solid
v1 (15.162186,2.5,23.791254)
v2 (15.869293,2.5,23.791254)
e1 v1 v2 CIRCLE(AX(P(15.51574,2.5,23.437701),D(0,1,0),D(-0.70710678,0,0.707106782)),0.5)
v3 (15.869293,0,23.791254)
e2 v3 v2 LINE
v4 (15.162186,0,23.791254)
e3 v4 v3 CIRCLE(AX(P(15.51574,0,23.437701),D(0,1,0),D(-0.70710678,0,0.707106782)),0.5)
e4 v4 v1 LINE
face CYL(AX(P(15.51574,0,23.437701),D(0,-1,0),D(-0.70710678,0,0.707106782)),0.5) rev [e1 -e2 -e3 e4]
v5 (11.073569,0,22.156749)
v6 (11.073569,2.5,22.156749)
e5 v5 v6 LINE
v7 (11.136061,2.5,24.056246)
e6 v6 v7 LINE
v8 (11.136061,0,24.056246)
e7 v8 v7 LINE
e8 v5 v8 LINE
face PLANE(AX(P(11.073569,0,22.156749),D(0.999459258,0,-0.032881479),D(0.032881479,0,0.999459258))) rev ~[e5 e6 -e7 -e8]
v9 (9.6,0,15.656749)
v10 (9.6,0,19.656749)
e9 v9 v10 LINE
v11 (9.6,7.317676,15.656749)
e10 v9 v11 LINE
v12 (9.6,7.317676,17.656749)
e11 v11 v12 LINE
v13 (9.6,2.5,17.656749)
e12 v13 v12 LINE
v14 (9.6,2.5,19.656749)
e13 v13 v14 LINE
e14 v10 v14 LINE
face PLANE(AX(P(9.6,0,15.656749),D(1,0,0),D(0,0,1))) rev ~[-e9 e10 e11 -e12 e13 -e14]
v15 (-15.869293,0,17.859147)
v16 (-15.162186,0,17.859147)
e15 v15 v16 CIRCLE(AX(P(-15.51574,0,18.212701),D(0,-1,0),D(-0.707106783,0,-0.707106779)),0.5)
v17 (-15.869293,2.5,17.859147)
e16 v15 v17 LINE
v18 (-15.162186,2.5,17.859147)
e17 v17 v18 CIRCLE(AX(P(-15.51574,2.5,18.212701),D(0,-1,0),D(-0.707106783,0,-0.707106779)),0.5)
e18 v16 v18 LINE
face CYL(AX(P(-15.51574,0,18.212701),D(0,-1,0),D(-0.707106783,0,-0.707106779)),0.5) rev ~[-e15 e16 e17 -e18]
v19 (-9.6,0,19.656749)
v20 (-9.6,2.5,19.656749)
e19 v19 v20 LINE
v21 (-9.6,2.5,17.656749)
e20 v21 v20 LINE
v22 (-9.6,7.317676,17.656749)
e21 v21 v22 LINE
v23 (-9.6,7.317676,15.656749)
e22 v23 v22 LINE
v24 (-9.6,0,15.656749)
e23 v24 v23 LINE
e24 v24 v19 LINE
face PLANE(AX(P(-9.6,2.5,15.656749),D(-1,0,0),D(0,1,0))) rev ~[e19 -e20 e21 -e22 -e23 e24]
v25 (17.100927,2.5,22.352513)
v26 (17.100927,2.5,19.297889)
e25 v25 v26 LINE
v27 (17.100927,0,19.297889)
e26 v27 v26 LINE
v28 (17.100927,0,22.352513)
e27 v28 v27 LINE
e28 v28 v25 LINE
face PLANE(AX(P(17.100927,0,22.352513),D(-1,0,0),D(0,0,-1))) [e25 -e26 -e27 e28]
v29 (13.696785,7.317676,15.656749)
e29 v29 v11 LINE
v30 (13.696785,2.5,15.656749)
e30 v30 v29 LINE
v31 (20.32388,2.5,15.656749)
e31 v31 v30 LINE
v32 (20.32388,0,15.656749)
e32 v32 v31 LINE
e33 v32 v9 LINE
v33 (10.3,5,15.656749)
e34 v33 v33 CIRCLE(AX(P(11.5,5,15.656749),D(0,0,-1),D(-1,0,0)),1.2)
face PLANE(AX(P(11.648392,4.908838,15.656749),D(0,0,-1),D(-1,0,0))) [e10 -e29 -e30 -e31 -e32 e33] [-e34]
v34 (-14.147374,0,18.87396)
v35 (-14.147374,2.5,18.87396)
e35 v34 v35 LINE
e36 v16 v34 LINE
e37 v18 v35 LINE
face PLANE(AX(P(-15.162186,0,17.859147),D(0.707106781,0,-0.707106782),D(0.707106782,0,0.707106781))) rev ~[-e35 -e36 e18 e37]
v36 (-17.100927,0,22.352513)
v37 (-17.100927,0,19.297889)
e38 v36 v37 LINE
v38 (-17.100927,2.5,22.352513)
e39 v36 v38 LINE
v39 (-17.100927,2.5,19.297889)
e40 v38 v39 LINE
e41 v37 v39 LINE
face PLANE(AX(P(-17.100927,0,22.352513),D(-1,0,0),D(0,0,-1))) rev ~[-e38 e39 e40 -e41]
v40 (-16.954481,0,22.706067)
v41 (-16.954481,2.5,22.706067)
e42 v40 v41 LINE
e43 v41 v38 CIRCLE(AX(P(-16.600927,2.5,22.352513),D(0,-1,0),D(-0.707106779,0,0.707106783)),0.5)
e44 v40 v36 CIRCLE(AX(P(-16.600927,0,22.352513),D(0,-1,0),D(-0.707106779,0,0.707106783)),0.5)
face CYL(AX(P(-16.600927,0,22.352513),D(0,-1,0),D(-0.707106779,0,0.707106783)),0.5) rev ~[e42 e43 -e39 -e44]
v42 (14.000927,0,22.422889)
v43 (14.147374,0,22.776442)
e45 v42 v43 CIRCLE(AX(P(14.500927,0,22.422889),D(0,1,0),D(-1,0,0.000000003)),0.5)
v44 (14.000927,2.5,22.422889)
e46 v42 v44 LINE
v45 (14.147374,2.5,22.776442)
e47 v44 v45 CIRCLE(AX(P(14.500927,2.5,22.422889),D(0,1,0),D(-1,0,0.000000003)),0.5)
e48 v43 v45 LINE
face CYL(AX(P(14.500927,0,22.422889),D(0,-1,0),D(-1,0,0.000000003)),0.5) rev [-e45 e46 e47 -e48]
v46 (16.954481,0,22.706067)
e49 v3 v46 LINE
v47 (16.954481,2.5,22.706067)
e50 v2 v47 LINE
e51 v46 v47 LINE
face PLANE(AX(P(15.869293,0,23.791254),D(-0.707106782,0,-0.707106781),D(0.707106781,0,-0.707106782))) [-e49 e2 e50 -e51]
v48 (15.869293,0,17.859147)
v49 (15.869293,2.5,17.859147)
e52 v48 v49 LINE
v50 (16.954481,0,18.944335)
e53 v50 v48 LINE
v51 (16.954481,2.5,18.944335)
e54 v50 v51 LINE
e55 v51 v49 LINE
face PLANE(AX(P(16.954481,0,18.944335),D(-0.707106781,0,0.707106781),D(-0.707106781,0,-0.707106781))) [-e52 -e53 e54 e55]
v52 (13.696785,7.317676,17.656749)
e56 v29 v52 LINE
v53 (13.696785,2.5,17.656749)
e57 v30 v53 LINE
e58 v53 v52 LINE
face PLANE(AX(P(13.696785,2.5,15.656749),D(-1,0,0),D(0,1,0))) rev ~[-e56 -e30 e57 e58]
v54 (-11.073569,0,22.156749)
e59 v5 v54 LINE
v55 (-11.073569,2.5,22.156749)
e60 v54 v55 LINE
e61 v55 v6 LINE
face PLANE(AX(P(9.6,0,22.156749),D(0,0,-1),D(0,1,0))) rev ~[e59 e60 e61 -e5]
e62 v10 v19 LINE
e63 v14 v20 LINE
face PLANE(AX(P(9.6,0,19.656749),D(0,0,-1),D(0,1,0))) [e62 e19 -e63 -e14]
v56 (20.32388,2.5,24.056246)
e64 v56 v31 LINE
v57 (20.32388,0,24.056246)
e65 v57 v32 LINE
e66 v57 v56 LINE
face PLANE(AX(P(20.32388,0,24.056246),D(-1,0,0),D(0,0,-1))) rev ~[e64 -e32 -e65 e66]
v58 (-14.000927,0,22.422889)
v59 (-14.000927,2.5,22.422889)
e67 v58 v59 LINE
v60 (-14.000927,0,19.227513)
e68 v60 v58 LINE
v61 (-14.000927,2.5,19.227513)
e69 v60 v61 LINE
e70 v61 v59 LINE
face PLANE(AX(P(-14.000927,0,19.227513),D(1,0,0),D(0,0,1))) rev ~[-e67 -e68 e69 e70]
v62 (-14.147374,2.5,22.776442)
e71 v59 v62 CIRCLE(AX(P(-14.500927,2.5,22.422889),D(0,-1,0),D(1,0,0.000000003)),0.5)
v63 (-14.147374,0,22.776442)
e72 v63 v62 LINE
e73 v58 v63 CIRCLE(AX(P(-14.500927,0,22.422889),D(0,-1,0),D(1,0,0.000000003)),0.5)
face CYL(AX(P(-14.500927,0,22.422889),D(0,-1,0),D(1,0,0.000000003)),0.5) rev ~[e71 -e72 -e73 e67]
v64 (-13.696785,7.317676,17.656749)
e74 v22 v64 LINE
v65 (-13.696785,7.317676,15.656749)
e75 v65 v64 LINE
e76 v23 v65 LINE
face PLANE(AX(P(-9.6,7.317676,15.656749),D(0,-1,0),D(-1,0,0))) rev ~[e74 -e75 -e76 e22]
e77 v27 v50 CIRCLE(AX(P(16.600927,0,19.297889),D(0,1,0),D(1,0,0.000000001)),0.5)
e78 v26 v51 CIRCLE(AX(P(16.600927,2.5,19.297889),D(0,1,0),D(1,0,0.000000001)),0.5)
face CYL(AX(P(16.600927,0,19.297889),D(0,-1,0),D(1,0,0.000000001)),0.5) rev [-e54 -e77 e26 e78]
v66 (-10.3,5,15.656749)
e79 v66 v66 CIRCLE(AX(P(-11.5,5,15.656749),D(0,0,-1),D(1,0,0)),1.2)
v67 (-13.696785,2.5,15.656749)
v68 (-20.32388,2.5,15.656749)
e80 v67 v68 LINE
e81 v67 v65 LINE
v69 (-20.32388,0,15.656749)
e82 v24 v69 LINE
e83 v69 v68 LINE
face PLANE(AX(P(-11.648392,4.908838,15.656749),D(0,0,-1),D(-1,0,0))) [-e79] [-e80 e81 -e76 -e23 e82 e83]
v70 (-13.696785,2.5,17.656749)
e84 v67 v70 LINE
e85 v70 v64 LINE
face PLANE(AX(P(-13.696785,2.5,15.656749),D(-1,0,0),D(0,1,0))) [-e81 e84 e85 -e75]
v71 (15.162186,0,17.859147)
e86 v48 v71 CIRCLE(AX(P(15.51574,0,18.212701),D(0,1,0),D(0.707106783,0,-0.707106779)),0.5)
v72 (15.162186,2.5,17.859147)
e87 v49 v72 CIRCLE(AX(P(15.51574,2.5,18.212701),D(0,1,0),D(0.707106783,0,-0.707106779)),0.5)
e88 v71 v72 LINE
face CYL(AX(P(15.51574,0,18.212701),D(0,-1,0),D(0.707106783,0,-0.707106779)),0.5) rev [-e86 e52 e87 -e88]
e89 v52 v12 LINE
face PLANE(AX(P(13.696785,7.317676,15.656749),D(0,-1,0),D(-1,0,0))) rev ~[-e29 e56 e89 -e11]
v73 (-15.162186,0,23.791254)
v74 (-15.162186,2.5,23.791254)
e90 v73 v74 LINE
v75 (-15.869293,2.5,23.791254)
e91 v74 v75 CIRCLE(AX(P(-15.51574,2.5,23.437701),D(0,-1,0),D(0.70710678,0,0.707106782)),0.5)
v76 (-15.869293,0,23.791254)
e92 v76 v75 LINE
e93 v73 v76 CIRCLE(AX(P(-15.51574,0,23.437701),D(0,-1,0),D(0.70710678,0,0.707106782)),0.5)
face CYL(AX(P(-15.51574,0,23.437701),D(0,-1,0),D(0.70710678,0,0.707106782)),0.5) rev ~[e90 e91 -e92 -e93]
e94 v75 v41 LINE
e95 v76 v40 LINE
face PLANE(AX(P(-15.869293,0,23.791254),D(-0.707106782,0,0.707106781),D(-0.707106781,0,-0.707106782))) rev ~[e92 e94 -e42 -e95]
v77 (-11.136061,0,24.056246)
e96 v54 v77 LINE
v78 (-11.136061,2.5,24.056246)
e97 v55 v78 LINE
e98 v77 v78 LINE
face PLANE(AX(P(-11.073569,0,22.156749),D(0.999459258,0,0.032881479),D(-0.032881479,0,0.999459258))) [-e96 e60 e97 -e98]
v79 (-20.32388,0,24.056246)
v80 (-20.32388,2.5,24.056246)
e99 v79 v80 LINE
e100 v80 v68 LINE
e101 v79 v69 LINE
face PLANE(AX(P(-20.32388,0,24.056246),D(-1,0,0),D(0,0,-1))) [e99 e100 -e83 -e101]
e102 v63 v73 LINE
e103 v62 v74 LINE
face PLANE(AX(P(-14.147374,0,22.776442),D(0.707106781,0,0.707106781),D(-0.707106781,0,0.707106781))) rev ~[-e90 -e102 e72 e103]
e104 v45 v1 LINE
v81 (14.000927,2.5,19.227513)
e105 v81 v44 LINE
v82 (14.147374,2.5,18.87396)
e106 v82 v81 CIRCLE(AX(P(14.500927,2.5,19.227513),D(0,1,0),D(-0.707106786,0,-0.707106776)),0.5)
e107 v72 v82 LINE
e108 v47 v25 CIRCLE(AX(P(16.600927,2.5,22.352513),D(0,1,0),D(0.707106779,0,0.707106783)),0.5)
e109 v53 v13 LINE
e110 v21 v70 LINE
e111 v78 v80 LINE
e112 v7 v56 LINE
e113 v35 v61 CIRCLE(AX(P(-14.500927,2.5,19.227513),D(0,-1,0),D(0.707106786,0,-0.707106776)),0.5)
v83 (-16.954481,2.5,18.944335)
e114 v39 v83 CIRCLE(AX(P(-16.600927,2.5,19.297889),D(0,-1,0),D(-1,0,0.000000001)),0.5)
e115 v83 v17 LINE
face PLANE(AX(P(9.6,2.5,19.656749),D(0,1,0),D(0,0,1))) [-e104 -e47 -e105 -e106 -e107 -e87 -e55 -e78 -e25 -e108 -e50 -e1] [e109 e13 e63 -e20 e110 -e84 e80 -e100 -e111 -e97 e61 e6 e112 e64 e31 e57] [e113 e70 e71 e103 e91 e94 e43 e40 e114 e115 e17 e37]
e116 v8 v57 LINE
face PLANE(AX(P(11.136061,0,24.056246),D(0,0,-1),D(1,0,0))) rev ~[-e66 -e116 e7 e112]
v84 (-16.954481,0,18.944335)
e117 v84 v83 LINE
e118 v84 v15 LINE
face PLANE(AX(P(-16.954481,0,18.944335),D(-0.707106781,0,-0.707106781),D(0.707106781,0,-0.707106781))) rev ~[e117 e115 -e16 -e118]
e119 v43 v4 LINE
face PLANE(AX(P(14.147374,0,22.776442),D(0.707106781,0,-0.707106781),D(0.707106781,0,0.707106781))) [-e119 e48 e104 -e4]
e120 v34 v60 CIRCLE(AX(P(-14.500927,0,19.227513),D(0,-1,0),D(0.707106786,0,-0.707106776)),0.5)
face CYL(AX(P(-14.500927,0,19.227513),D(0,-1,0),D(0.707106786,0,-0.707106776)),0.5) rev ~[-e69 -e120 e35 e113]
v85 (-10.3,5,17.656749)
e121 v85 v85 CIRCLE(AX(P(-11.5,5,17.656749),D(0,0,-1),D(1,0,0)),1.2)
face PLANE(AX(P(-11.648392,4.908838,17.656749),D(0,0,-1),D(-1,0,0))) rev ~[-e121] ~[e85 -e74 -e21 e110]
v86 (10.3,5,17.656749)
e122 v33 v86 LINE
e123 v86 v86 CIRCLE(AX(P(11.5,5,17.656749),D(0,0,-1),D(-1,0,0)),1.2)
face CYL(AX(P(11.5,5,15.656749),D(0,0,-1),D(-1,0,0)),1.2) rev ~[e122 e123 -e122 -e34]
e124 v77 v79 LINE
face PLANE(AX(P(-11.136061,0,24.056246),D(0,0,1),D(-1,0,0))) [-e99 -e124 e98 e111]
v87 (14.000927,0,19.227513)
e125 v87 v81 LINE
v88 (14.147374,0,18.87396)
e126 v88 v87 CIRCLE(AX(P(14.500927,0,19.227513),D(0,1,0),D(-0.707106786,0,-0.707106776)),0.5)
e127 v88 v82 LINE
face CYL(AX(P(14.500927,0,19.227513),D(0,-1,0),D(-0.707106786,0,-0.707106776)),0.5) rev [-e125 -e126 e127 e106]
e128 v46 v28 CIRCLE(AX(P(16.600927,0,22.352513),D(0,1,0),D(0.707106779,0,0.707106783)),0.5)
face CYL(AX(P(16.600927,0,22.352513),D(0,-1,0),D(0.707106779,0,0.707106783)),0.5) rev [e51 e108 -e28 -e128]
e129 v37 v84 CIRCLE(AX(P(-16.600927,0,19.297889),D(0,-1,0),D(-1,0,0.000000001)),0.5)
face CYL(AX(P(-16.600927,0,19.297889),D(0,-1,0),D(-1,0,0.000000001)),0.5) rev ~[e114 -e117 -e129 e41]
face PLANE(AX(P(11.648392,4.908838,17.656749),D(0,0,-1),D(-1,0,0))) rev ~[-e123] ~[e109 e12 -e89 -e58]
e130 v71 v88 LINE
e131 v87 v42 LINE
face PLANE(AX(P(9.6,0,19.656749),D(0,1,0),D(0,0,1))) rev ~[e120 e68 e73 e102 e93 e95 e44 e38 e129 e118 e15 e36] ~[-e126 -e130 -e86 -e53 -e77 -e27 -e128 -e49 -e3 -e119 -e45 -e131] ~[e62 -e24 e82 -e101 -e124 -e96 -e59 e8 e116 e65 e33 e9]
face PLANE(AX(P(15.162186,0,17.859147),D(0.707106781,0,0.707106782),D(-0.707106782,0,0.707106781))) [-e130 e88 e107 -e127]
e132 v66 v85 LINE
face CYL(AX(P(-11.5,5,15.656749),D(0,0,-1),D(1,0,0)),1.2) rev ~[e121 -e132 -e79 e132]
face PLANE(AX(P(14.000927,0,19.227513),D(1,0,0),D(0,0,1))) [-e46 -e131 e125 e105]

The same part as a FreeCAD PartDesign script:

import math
import FreeCAD as App
import Part
import Sketcher


def add_polygon(sketch, points):
    """Adds a closed chain of lines whose ends are joined by coincident constraints."""
    first, n = sketch.GeometryCount, len(points)
    for a, b in zip(points, points[1:] + points[:1]):
        sketch.addGeometry(Part.LineSegment(App.Vector(*a, 0), App.Vector(*b, 0)), False)
    for i in range(n):
        sketch.addConstraint(Sketcher.Constraint("Coincident", first + i, 2, first + (i + 1) % n, 1))

doc = App.newDocument("Part")
body = doc.addObject("PartDesign::Body", "Body")

# Sketch on XZ plane
sketch1 = body.newObject("Sketcher::SketchObject", "Sketch")
sketch1.AttachmentSupport = (doc.getObject("XZ_Plane"), [""])
sketch1.MapMode = "FlatFace"
add_polygon(sketch1, [(11.14, 24.06), (20.32, 24.06), (20.32, 15.66), (9.6, 15.66), (9.6, 22.16), (11.07, 22.16)])  # lines 0-5
sketch1.addGeometry(Part.LineSegment(App.Vector(14, 22.42, 0), App.Vector(14, 19.23, 0)), False)  # 6
sketch1.addGeometry(Part.ArcOfCircle(Part.Circle(App.Vector(14.5, 19.23, 0), App.Vector(0, 0, 1), 0.5), math.radians(-180), math.radians(-135)), False)  # 7
sketch1.addGeometry(Part.LineSegment(App.Vector(14.15, 18.87, 0), App.Vector(15.16, 17.86, 0)), False)  # 8
sketch1.addGeometry(Part.ArcOfCircle(Part.Circle(App.Vector(15.52, 18.21, 0), App.Vector(0, 0, 1), 0.5), math.radians(-135), math.radians(-45)), False)  # 9
sketch1.addGeometry(Part.LineSegment(App.Vector(15.87, 17.86, 0), App.Vector(16.95, 18.94, 0)), False)  # 10
sketch1.addGeometry(Part.ArcOfCircle(Part.Circle(App.Vector(16.6, 19.3, 0), App.Vector(0, 0, 1), 0.5), math.radians(-45), math.radians(0)), False)  # 11
sketch1.addGeometry(Part.LineSegment(App.Vector(17.1, 19.3, 0), App.Vector(17.1, 22.35, 0)), False)  # 12
sketch1.addGeometry(Part.ArcOfCircle(Part.Circle(App.Vector(16.6, 22.35, 0), App.Vector(0, 0, 1), 0.5), math.radians(0), math.radians(45)), False)  # 13
sketch1.addGeometry(Part.LineSegment(App.Vector(16.95, 22.71, 0), App.Vector(15.87, 23.79, 0)), False)  # 14
sketch1.addGeometry(Part.ArcOfCircle(Part.Circle(App.Vector(15.52, 23.44, 0), App.Vector(0, 0, 1), 0.5), math.radians(45), math.radians(135)), False)  # 15
sketch1.addGeometry(Part.LineSegment(App.Vector(15.16, 23.79, 0), App.Vector(14.15, 22.78, 0)), False)  # 16
sketch1.addGeometry(Part.ArcOfCircle(Part.Circle(App.Vector(14.5, 22.42, 0), App.Vector(0, 0, 1), 0.5), math.radians(135), math.radians(180)), False)  # 17
sketch1.addConstraint([
    Sketcher.Constraint("Tangent", 6, 2, 7, 1),
    Sketcher.Constraint("Tangent", 7, 2, 8, 1),
    Sketcher.Constraint("Tangent", 8, 2, 9, 1),
    Sketcher.Constraint("Tangent", 9, 2, 10, 1),
    Sketcher.Constraint("Tangent", 10, 2, 11, 1),
    Sketcher.Constraint("Tangent", 11, 2, 12, 1),
    Sketcher.Constraint("Tangent", 12, 2, 13, 1),
    Sketcher.Constraint("Tangent", 13, 2, 14, 1),
    Sketcher.Constraint("Tangent", 14, 2, 15, 1),
    Sketcher.Constraint("Tangent", 15, 2, 16, 1),
    Sketcher.Constraint("Tangent", 16, 2, 17, 1),
    Sketcher.Constraint("Tangent", 17, 2, 6, 1),
    Sketcher.Constraint("Horizontal", 0),
    Sketcher.Constraint("Vertical", 1),
    Sketcher.Constraint("Horizontal", 2),
    Sketcher.Constraint("Vertical", 3),
    Sketcher.Constraint("Horizontal", 4),
    Sketcher.Constraint("Vertical", 6),
    Sketcher.Constraint("Vertical", 12),
    Sketcher.Constraint("Equal", 7, 9),
    Sketcher.Constraint("Equal", 9, 11),
    Sketcher.Constraint("Equal", 11, 13),
    Sketcher.Constraint("Equal", 13, 15),
    Sketcher.Constraint("Equal", 15, 17),
    Sketcher.Constraint("Perpendicular", 8, 10),
    Sketcher.Constraint("Perpendicular", 10, 14),
    Sketcher.Constraint("Perpendicular", 14, 16),
    Sketcher.Constraint("Horizontal", 8, 2, 9, 2),
    Sketcher.Constraint("Vertical", 9, 3, 15, 3),
    Sketcher.Constraint("Radius", 7, 0.5),
    Sketcher.Constraint("DistanceY", 3, 1, 3, 2, 6.5),
    Sketcher.Constraint("DistanceX", -1, 1, 2, 2, 9.6),
    Sketcher.Constraint("DistanceX", 7, 3, 11, 3, 2.1),
    Sketcher.Constraint("DistanceY", 7, 3, 13, 3, 3.125),
    Sketcher.Constraint("DistanceX", 0, 1, 0, 2, 9.187819),
    Sketcher.Constraint("DistanceX", 2, 2, 2, 1, 10.72388),
    Sketcher.Constraint("DistanceX", 4, 1, 4, 2, 1.473569),
    Sketcher.Constraint("DistanceY", -1, 1, 9, 3, 18.212701),
    Sketcher.Constraint("Distance", 8, 1.435161),
    Sketcher.Constraint("DistanceY", 1, 2, 1, 1, 8.399497),
    Sketcher.Constraint("DistanceX", -1, 1, 9, 3, 15.51574),
    Sketcher.Constraint("DistanceY", -1, 1, 1, 2, 15.656749),
])
pad1 = body.newObject("PartDesign::Pad", "Pad")
pad1.Profile = sketch1
pad1.Length = 2.5
pad1.Reversed = True
body2 = doc.addObject("PartDesign::Body", "Body001")

# Sketch on XZ plane
sketch2 = body2.newObject("Sketcher::SketchObject", "Sketch001")
sketch2.AttachmentSupport = (doc.getObject("XZ_Plane001"), [""])
sketch2.MapMode = "FlatFace"
add_polygon(sketch2, [(-20.32, 24.06), (-11.14, 24.06), (-11.07, 22.16), (-9.6, 22.16), (-9.6, 15.66), (-20.32, 15.66)])  # lines 0-5
sketch2.addGeometry(Part.LineSegment(App.Vector(-14, 19.23, 0), App.Vector(-14, 22.42, 0)), False)  # 6
sketch2.addGeometry(Part.ArcOfCircle(Part.Circle(App.Vector(-14.5, 22.42, 0), App.Vector(0, 0, 1), 0.5), math.radians(0), math.radians(45)), False)  # 7
sketch2.addGeometry(Part.LineSegment(App.Vector(-14.15, 22.78, 0), App.Vector(-15.16, 23.79, 0)), False)  # 8
sketch2.addGeometry(Part.ArcOfCircle(Part.Circle(App.Vector(-15.52, 23.44, 0), App.Vector(0, 0, 1), 0.5), math.radians(45), math.radians(135)), False)  # 9
sketch2.addGeometry(Part.LineSegment(App.Vector(-15.87, 23.79, 0), App.Vector(-16.95, 22.71, 0)), False)  # 10
sketch2.addGeometry(Part.ArcOfCircle(Part.Circle(App.Vector(-16.6, 22.35, 0), App.Vector(0, 0, 1), 0.5), math.radians(135), math.radians(180)), False)  # 11
sketch2.addGeometry(Part.LineSegment(App.Vector(-17.1, 22.35, 0), App.Vector(-17.1, 19.3, 0)), False)  # 12
sketch2.addGeometry(Part.ArcOfCircle(Part.Circle(App.Vector(-16.6, 19.3, 0), App.Vector(0, 0, 1), 0.5), math.radians(180), math.radians(225)), False)  # 13
sketch2.addGeometry(Part.LineSegment(App.Vector(-16.95, 18.94, 0), App.Vector(-15.87, 17.86, 0)), False)  # 14
sketch2.addGeometry(Part.ArcOfCircle(Part.Circle(App.Vector(-15.52, 18.21, 0), App.Vector(0, 0, 1), 0.5), math.radians(-135), math.radians(-45)), False)  # 15
sketch2.addGeometry(Part.LineSegment(App.Vector(-15.16, 17.86, 0), App.Vector(-14.15, 18.87, 0)), False)  # 16
sketch2.addGeometry(Part.ArcOfCircle(Part.Circle(App.Vector(-14.5, 19.23, 0), App.Vector(0, 0, 1), 0.5), math.radians(-45), math.radians(0)), False)  # 17
sketch2.addConstraint([
    Sketcher.Constraint("Tangent", 6, 2, 7, 1),
    Sketcher.Constraint("Tangent", 7, 2, 8, 1),
    Sketcher.Constraint("Tangent", 8, 2, 9, 1),
    Sketcher.Constraint("Tangent", 9, 2, 10, 1),
    Sketcher.Constraint("Tangent", 10, 2, 11, 1),
    Sketcher.Constraint("Tangent", 11, 2, 12, 1),
    Sketcher.Constraint("Tangent", 12, 2, 13, 1),
    Sketcher.Constraint("Tangent", 13, 2, 14, 1),
    Sketcher.Constraint("Tangent", 14, 2, 15, 1),
    Sketcher.Constraint("Tangent", 15, 2, 16, 1),
    Sketcher.Constraint("Tangent", 16, 2, 17, 1),
    Sketcher.Constraint("Tangent", 17, 2, 6, 1),
    Sketcher.Constraint("Horizontal", 0),
    Sketcher.Constraint("Horizontal", 2),
    Sketcher.Constraint("Vertical", 3),
    Sketcher.Constraint("Horizontal", 4),
    Sketcher.Constraint("Vertical", 5),
    Sketcher.Constraint("Vertical", 6),
    Sketcher.Constraint("Vertical", 12),
    Sketcher.Constraint("Equal", 7, 9),
    Sketcher.Constraint("Equal", 9, 11),
    Sketcher.Constraint("Equal", 11, 13),
    Sketcher.Constraint("Equal", 13, 15),
    Sketcher.Constraint("Equal", 15, 17),
    Sketcher.Constraint("Perpendicular", 8, 10),
    Sketcher.Constraint("Perpendicular", 10, 14),
    Sketcher.Constraint("Perpendicular", 14, 16),
    Sketcher.Constraint("Horizontal", 8, 2, 9, 2),
    Sketcher.Constraint("Vertical", 9, 3, 15, 3),
    Sketcher.Constraint("Radius", 7, 0.5),
    Sketcher.Constraint("DistanceY", 3, 2, 3, 1, 6.5),
    Sketcher.Constraint("DistanceX", 2, 2, -1, 1, 9.6),
    Sketcher.Constraint("DistanceX", 11, 3, 7, 3, 2.1),
    Sketcher.Constraint("DistanceY", 13, 3, 7, 3, 3.125),
    Sketcher.Constraint("DistanceX", 0, 1, 0, 2, 9.187819),
    Sketcher.Constraint("DistanceX", 2, 1, 2, 2, 1.473569),
    Sketcher.Constraint("DistanceX", 4, 2, 4, 1, 10.72388),
    Sketcher.Constraint("DistanceY", -1, 1, 9, 3, 23.437701),
    Sketcher.Constraint("Distance", 8, 1.435161),
    Sketcher.Constraint("DistanceY", 5, 1, 5, 2, 8.399497),
    Sketcher.Constraint("DistanceX", 9, 3, -1, 1, 15.51574),
    Sketcher.Constraint("DistanceY", -1, 1, 1, 2, 22.156749),
])
pad2 = body2.newObject("PartDesign::Pad", "Pad001")
pad2.Profile = sketch2
pad2.Length = 2.5
pad2.Reversed = True
body.AllowCompound = True
doc.recompute()

boolean = body.newObject("PartDesign::Boolean", "Boolean")
boolean.Type = "Fuse"
boolean.addObjects([body2])

# Sketch on XY plane
sketch3 = body.newObject("Sketcher::SketchObject", "Sketch002")
sketch3.AttachmentSupport = (doc.getObject("XY_Plane"), [""])
sketch3.MapMode = "FlatFace"
sketch3.AttachmentOffset = App.Placement(App.Vector(0, 0, 15.656749), App.Rotation())
add_polygon(sketch3, [(13.7, 7.3), (13.7, 2.5), (9.6, 2.5), (9.6, 7.3)])  # lines 0-3
sketch3.addGeometry(Part.Circle(App.Vector(11.5, 5, 0), App.Vector(0, 0, 1), 1.2), False)  # 4
add_polygon(sketch3, [(-9.6, 7.3), (-9.6, 2.5), (-13.7, 2.5), (-13.7, 7.3)])  # lines 5-8
sketch3.addGeometry(Part.Circle(App.Vector(-11.5, 5, 0), App.Vector(0, 0, 1), 1.2), False)  # 9
sketch3.addConstraint([
    Sketcher.Constraint("Vertical", 0),
    Sketcher.Constraint("Horizontal", 1),
    Sketcher.Constraint("Vertical", 2),
    Sketcher.Constraint("Horizontal", 3),
    Sketcher.Constraint("Vertical", 5),
    Sketcher.Constraint("Horizontal", 6),
    Sketcher.Constraint("Vertical", 7),
    Sketcher.Constraint("Horizontal", 8),
    Sketcher.Constraint("Equal", 4, 9),
    Sketcher.Constraint("Symmetric", 4, 3, 9, 3, -2),
    Sketcher.Constraint("Symmetric", 1, 2, 5, 2, -2),
    Sketcher.Constraint("Symmetric", 3, 2, 7, 2, -2),
    Sketcher.Constraint("Diameter", 4, 2.4),
    Sketcher.Constraint("DistanceY", -1, 1, 4, 3, 5.0),
    Sketcher.Constraint("DistanceX", 9, 3, 4, 3, 23.0),
    Sketcher.Constraint("DistanceY", -1, 1, 0, 2, 2.5),
    Sketcher.Constraint("DistanceX", -1, 1, 1, 2, 9.6),
    Sketcher.Constraint("DistanceX", 1, 2, 1, 1, 4.096785),
    Sketcher.Constraint("DistanceY", 0, 2, 0, 1, 4.817676),
])
pad3 = body.newObject("PartDesign::Pad", "Pad002")
pad3.Profile = sketch3
pad3.Length = 2

# Sketch on YZ plane
sketch4 = body.newObject("Sketcher::SketchObject", "Sketch003")
sketch4.AttachmentSupport = (doc.getObject("YZ_Plane"), [""])
sketch4.MapMode = "FlatFace"
sketch4.AttachmentOffset = App.Placement(App.Vector(0, 0, 9.6), App.Rotation())
add_polygon(sketch4, [(2.5, 19.7), (0, 19.7), (0, 22.2), (2.5, 22.2)])  # lines 0-3
sketch4.addConstraint([
    Sketcher.Constraint("Horizontal", 0),
    Sketcher.Constraint("Vertical", 1),
    Sketcher.Constraint("Horizontal", 2),
    Sketcher.Constraint("Vertical", 3),
    Sketcher.Constraint("PointOnObject", 0, 2, -2),
    Sketcher.Constraint("Equal", 2, 1),
    Sketcher.Constraint("DistanceX", 0, 2, 0, 1, 2.5),
    Sketcher.Constraint("DistanceY", -1, 1, 0, 2, 19.656749),
])
pad4 = body.newObject("PartDesign::Pad", "Pad003")
pad4.Profile = sketch4
pad4.Type = "UpToFirst"
pad4.Reversed = True

doc.recompute()
